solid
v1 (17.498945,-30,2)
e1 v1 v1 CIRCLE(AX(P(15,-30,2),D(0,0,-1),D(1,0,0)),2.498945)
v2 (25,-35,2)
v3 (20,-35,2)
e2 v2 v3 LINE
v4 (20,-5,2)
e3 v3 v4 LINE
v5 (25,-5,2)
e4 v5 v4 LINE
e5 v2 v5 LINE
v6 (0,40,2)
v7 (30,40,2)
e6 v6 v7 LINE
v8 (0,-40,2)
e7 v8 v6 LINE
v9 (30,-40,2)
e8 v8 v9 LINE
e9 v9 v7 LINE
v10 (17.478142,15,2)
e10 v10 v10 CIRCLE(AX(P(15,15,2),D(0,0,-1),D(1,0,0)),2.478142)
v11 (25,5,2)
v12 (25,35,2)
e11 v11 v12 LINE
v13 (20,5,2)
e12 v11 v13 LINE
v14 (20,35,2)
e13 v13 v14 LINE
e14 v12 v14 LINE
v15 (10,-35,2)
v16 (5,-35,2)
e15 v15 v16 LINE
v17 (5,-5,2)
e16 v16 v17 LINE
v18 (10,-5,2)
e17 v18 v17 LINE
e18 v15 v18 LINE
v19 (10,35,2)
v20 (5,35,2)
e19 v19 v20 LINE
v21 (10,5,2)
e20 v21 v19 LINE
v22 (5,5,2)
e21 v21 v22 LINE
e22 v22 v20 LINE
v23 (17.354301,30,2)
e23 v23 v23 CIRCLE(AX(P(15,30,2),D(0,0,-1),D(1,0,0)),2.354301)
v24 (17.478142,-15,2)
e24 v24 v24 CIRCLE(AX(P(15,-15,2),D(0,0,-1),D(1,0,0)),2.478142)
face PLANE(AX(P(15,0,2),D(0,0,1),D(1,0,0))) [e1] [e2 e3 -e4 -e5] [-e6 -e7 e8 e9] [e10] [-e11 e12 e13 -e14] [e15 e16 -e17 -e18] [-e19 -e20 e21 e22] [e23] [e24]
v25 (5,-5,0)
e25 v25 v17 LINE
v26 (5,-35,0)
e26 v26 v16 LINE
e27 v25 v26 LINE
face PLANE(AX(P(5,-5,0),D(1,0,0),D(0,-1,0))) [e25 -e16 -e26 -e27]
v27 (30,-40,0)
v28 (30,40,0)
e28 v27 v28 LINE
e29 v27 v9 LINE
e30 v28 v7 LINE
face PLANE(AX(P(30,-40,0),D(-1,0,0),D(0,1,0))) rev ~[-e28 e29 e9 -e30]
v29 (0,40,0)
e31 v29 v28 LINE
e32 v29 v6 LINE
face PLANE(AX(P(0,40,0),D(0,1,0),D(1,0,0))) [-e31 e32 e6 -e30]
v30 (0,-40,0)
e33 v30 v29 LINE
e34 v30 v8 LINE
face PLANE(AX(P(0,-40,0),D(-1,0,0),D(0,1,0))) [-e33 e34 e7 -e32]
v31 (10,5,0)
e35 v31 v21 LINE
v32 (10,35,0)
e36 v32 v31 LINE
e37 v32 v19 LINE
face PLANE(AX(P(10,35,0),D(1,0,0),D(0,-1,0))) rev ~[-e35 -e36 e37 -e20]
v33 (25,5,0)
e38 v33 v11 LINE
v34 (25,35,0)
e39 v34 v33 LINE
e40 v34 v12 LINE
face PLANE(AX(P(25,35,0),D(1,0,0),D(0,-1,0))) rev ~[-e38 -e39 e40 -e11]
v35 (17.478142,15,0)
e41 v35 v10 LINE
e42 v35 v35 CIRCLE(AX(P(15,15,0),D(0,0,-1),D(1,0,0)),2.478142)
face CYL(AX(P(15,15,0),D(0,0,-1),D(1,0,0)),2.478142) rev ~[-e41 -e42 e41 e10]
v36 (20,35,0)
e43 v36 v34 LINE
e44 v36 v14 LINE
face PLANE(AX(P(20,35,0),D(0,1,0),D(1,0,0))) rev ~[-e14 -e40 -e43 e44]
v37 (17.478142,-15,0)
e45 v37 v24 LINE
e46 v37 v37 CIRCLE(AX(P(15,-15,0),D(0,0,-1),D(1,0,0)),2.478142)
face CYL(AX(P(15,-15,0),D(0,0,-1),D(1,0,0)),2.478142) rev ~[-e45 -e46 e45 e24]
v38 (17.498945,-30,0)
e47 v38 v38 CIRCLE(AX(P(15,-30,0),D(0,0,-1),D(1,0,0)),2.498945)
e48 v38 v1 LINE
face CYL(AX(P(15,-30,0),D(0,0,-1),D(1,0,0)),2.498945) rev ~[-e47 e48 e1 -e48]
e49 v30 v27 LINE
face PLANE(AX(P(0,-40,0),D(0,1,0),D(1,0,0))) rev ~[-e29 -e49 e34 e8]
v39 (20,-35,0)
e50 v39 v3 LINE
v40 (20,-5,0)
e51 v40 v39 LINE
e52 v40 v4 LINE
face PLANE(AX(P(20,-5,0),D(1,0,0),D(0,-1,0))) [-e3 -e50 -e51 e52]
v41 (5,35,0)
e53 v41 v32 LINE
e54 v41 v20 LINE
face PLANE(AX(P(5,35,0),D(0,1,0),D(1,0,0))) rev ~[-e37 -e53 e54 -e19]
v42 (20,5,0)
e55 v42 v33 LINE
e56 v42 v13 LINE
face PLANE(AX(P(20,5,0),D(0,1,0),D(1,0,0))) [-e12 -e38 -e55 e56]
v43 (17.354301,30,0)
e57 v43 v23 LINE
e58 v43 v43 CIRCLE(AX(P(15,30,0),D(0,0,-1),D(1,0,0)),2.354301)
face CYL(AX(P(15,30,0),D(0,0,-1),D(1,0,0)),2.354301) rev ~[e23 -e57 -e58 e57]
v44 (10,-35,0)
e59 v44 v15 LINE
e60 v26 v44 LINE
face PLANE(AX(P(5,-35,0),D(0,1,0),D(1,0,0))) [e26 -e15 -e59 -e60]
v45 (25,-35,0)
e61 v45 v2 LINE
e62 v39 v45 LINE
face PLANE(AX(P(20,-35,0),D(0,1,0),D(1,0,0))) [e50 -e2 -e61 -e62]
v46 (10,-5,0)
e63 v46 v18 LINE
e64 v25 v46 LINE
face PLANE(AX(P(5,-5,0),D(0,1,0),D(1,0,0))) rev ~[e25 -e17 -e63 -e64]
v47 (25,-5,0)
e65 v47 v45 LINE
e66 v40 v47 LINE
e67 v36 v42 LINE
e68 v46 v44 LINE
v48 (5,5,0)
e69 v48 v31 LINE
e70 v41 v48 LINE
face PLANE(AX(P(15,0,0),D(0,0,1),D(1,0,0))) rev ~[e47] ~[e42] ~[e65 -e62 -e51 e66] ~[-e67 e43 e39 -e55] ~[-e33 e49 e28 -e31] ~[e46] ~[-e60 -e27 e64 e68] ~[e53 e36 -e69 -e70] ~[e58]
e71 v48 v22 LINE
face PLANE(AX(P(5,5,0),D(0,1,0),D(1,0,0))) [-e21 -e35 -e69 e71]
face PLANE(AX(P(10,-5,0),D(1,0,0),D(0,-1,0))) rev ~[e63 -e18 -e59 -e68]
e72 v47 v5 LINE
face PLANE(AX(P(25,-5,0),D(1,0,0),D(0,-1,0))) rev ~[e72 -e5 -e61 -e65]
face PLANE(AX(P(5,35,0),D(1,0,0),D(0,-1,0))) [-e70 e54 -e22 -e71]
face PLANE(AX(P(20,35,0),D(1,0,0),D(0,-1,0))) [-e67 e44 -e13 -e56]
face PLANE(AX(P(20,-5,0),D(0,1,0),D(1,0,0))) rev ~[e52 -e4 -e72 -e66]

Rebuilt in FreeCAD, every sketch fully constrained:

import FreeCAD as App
import Part
import Sketcher
Q = App.Units.Quantity


def add_polygon(sketch, points):
    """Adds a closed chain of lines whose ends are joined by coincident constraints."""
    first, n = sketch.GeometryCount, len(points)
    for a, b in zip(points, points[1:] + points[:1]):
        sketch.addGeometry(Part.LineSegment(App.Vector(*a, 0), App.Vector(*b, 0)), False)
    for i in range(n):
        sketch.addConstraint(Sketcher.Constraint("Coincident", first + i, 2, first + (i + 1) % n, 1))

doc = App.newDocument("Part")
body = doc.addObject("PartDesign::Body", "Body")

# Sketch on XY plane
sketch1 = body.newObject("Sketcher::SketchObject", "Sketch")
sketch1.AttachmentSupport = (doc.getObject("XY_Plane"), [""])
sketch1.MapMode = "FlatFace"
add_polygon(sketch1, [(0, 40), (0, -40), (30, -40), (30, 40)])  # lines 0-3
sketch1.addConstraint(Sketcher.Constraint("Vertical", 0))
sketch1.addConstraint(Sketcher.Constraint("Horizontal", 1))
sketch1.addConstraint(Sketcher.Constraint("Vertical", 2))
sketch1.addConstraint(Sketcher.Constraint("Horizontal", 3))
sketch1.addConstraint(Sketcher.Constraint("Symmetric", 0, 2, 3, 2, -1, 1))
sketch1.addConstraint(Sketcher.Constraint("DistanceX", 1, 1, 1, 2, Q("30 mm")))
sketch1.addConstraint(Sketcher.Constraint("DistanceY", 0, 2, 0, 1, Q("80 mm")))
pad1 = body.newObject("PartDesign::Pad", "Pad")
pad1.Profile = sketch1
pad1.Length = 2

# Sketch on XY plane
sketch2 = body.newObject("Sketcher::SketchObject", "Sketch001")
sketch2.AttachmentSupport = (doc.getObject("XY_Plane"), [""])
sketch2.MapMode = "FlatFace"
sketch2.addGeometry(Part.Circle(App.Vector(15, 30, 0), App.Vector(0, 0, 1), 2.4), False)  # 0
sketch2.addGeometry(Part.Circle(App.Vector(15, 15, 0), App.Vector(0, 0, 1), 2.5), False)  # 1
sketch2.addGeometry(Part.Circle(App.Vector(15, -15, 0), App.Vector(0, 0, 1), 2.5), False)  # 2
sketch2.addGeometry(Part.Circle(App.Vector(15, -30, 0), App.Vector(0, 0, 1), 2.5), False)  # 3
add_polygon(sketch2, [(5, -35), (5, -5), (10, -5), (10, -35)])  # lines 4-7
add_polygon(sketch2, [(20, -35), (20, -5), (25, -5), (25, -35)])  # lines 8-11
add_polygon(sketch2, [(5, 5), (5, 35), (10, 35), (10, 5)])  # lines 12-15
add_polygon(sketch2, [(20, 5), (20, 35), (25, 35), (25, 5)])  # lines 16-19
sketch2.addConstraint(Sketcher.Constraint("Vertical", 4))
sketch2.addConstraint(Sketcher.Constraint("Horizontal", 5))
sketch2.addConstraint(Sketcher.Constraint("Vertical", 6))
sketch2.addConstraint(Sketcher.Constraint("Horizontal", 7))
sketch2.addConstraint(Sketcher.Constraint("Vertical", 8))
sketch2.addConstraint(Sketcher.Constraint("Horizontal", 9))
sketch2.addConstraint(Sketcher.Constraint("Vertical", 10))
sketch2.addConstraint(Sketcher.Constraint("Horizontal", 11))
sketch2.addConstraint(Sketcher.Constraint("Vertical", 12))
sketch2.addConstraint(Sketcher.Constraint("Horizontal", 13))
sketch2.addConstraint(Sketcher.Constraint("Vertical", 14))
sketch2.addConstraint(Sketcher.Constraint("Horizontal", 15))
sketch2.addConstraint(Sketcher.Constraint("Vertical", 16))
sketch2.addConstraint(Sketcher.Constraint("Horizontal", 17))
sketch2.addConstraint(Sketcher.Constraint("Vertical", 18))
sketch2.addConstraint(Sketcher.Constraint("Horizontal", 19))
sketch2.addConstraint(Sketcher.Constraint("Equal", 1, 2))
sketch2.addConstraint(Sketcher.Constraint("Symmetric", 1, 3, 2, 3, -1))
sketch2.addConstraint(Sketcher.Constraint("Symmetric", 0, 3, 3, 3, -1))
sketch2.addConstraint(Sketcher.Constraint("Symmetric", 7, 2, 12, 2, -1))
sketch2.addConstraint(Sketcher.Constraint("Symmetric", 5, 2, 14, 2, -1))
sketch2.addConstraint(Sketcher.Constraint("Symmetric", 11, 2, 16, 2, -1))
sketch2.addConstraint(Sketcher.Constraint("Symmetric", 9, 2, 18, 2, -1))
sketch2.addConstraint(Sketcher.Constraint("Horizontal", 5, 2, 8, 2))
sketch2.addConstraint(Sketcher.Constraint("Horizontal", 7, 2, 10, 2))
sketch2.addConstraint(Sketcher.Constraint("Vertical", 0, 3, 1, 3))
sketch2.addConstraint(Sketcher.Constraint("Equal", 7, 9))
sketch2.addConstraint(Sketcher.Constraint("DistanceX", 5, 1, 5, 2, Q("5 mm")))
sketch2.addConstraint(Sketcher.Constraint("DistanceY", 4, 1, 4, 2, Q("30 mm")))
sketch2.addConstraint(Sketcher.Constraint("DistanceX", -1, 1, 0, 3, Q("15 mm")))
sketch2.addConstraint(Sketcher.Constraint("DistanceY", -1, 1, 0, 3, Q("30 mm")))
sketch2.addConstraint(Sketcher.Constraint("DistanceY", -1, 1, 1, 3, Q("15 mm")))
sketch2.addConstraint(Sketcher.Constraint("DistanceX", -1, 1, 4, 2, Q("5 mm")))
sketch2.addConstraint(Sketcher.Constraint("DistanceY", 4, 2, -1, 1, Q("5 mm")))
sketch2.addConstraint(Sketcher.Constraint("DistanceX", -1, 1, 8, 2, Q("20 mm")))
sketch2.addConstraint(Sketcher.Constraint("Diameter", 3, Q("4.99789 mm")))
sketch2.addConstraint(Sketcher.Constraint("Diameter", 0, Q("4.708602 mm")))
sketch2.addConstraint(Sketcher.Constraint("Diameter", 1, Q("4.956284 mm")))
pocket1 = body.newObject("PartDesign::Pocket", "Pocket")
pocket1.Profile = sketch2
pocket1.Length = 5
pocket1.Reversed = True

doc.recompute()
